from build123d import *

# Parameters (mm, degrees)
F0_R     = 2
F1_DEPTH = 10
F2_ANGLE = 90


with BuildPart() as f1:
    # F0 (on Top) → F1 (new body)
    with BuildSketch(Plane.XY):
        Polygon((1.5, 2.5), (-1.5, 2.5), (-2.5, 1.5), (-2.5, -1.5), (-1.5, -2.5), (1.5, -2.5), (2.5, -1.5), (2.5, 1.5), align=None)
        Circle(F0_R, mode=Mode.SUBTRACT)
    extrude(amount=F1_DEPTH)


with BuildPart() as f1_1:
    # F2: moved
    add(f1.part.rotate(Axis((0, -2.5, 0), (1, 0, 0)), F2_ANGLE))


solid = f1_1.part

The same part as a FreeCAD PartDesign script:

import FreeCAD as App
import Part
import Sketcher

V = App.Vector

doc = App.newDocument("Part")
body = doc.addObject("PartDesign::Body", "Body")

# Sketch on XY plane
sketch1 = body.newObject("Sketcher::SketchObject", "Sketch")
sketch1.AttachmentSupport = (doc.getObject("XY_Plane"), [""])
sketch1.MapMode = "FlatFace"
sketch1.addGeometry([
    Part.LineSegment(V(1.5, 2.5, 0), V(-1.5, 2.5, 0)),  # 0
    Part.LineSegment(V(-1.5, 2.5, 0), V(-2.5, 1.5, 0)),  # 1
    Part.LineSegment(V(-2.5, 1.5, 0), V(-2.5, -1.5, 0)),  # 2
    Part.LineSegment(V(-2.5, -1.5, 0), V(-1.5, -2.5, 0)),  # 3
    Part.LineSegment(V(-1.5, -2.5, 0), V(1.5, -2.5, 0)),  # 4
    Part.LineSegment(V(1.5, -2.5, 0), V(2.5, -1.5, 0)),  # 5
    Part.LineSegment(V(2.5, -1.5, 0), V(2.5, 1.5, 0)),  # 6
    Part.LineSegment(V(2.5, 1.5, 0), V(1.5, 2.5, 0)),  # 7
    Part.Circle(V(0, 0, 0), V(0, 0, 1), 2),  # 8
], False)
sketch1.addConstraint([
    Sketcher.Constraint("Coincident", 0, 2, 1, 1),
    Sketcher.Constraint("Coincident", 1, 2, 2, 1),
    Sketcher.Constraint("Coincident", 2, 2, 3, 1),
    Sketcher.Constraint("Coincident", 3, 2, 4, 1),
    Sketcher.Constraint("Coincident", 4, 2, 5, 1),
    Sketcher.Constraint("Coincident", 5, 2, 6, 1),
    Sketcher.Constraint("Coincident", 6, 2, 7, 1),
    Sketcher.Constraint("Coincident", 7, 2, 0, 1),
    Sketcher.Constraint("Horizontal", 0),
    Sketcher.Constraint("Vertical", 2),
    Sketcher.Constraint("Horizontal", 4),
    Sketcher.Constraint("Vertical", 6),
    Sketcher.Constraint("Coincident", 8, 3, -1, 1),
    Sketcher.Constraint("Symmetric", 0, 2, 4, 2, -1, 1),
    Sketcher.Constraint("Symmetric", 1, 2, 5, 2, -1, 1),
    Sketcher.Constraint("Perpendicular", 1, 3),
    Sketcher.Constraint("Perpendicular", 5, 7),
    Sketcher.Constraint("Horizontal", 2, 2, 5, 2),
    Sketcher.Constraint("Horizontal", 1, 2, 6, 2),
    Sketcher.Constraint("Vertical", 0, 2, 3, 2),
    Sketcher.Constraint("Equal", 4, 2),
    Sketcher.Constraint("Diameter", 8, 4.0),
    Sketcher.Constraint("DistanceX", 0, 2, 0, 1, 3.0),
    Sketcher.Constraint("DistanceX", 1, 2, 0, 2, 1.0),
])
pad1 = body.newObject("PartDesign::Pad", "Pad")
pad1.Profile = sketch1
pad1.Length = 10
body2 = doc.addObject("PartDesign::Body", "Body001")
doc.recompute()

body.Placement = App.Placement(V(0, -2.5, 2.5), App.Rotation(V(1, 0, 0), 90))
boolean = body2.newObject("PartDesign::Boolean", "Boolean")
boolean.Type = "Fuse"
boolean.addObjects([body])

doc.recompute()
